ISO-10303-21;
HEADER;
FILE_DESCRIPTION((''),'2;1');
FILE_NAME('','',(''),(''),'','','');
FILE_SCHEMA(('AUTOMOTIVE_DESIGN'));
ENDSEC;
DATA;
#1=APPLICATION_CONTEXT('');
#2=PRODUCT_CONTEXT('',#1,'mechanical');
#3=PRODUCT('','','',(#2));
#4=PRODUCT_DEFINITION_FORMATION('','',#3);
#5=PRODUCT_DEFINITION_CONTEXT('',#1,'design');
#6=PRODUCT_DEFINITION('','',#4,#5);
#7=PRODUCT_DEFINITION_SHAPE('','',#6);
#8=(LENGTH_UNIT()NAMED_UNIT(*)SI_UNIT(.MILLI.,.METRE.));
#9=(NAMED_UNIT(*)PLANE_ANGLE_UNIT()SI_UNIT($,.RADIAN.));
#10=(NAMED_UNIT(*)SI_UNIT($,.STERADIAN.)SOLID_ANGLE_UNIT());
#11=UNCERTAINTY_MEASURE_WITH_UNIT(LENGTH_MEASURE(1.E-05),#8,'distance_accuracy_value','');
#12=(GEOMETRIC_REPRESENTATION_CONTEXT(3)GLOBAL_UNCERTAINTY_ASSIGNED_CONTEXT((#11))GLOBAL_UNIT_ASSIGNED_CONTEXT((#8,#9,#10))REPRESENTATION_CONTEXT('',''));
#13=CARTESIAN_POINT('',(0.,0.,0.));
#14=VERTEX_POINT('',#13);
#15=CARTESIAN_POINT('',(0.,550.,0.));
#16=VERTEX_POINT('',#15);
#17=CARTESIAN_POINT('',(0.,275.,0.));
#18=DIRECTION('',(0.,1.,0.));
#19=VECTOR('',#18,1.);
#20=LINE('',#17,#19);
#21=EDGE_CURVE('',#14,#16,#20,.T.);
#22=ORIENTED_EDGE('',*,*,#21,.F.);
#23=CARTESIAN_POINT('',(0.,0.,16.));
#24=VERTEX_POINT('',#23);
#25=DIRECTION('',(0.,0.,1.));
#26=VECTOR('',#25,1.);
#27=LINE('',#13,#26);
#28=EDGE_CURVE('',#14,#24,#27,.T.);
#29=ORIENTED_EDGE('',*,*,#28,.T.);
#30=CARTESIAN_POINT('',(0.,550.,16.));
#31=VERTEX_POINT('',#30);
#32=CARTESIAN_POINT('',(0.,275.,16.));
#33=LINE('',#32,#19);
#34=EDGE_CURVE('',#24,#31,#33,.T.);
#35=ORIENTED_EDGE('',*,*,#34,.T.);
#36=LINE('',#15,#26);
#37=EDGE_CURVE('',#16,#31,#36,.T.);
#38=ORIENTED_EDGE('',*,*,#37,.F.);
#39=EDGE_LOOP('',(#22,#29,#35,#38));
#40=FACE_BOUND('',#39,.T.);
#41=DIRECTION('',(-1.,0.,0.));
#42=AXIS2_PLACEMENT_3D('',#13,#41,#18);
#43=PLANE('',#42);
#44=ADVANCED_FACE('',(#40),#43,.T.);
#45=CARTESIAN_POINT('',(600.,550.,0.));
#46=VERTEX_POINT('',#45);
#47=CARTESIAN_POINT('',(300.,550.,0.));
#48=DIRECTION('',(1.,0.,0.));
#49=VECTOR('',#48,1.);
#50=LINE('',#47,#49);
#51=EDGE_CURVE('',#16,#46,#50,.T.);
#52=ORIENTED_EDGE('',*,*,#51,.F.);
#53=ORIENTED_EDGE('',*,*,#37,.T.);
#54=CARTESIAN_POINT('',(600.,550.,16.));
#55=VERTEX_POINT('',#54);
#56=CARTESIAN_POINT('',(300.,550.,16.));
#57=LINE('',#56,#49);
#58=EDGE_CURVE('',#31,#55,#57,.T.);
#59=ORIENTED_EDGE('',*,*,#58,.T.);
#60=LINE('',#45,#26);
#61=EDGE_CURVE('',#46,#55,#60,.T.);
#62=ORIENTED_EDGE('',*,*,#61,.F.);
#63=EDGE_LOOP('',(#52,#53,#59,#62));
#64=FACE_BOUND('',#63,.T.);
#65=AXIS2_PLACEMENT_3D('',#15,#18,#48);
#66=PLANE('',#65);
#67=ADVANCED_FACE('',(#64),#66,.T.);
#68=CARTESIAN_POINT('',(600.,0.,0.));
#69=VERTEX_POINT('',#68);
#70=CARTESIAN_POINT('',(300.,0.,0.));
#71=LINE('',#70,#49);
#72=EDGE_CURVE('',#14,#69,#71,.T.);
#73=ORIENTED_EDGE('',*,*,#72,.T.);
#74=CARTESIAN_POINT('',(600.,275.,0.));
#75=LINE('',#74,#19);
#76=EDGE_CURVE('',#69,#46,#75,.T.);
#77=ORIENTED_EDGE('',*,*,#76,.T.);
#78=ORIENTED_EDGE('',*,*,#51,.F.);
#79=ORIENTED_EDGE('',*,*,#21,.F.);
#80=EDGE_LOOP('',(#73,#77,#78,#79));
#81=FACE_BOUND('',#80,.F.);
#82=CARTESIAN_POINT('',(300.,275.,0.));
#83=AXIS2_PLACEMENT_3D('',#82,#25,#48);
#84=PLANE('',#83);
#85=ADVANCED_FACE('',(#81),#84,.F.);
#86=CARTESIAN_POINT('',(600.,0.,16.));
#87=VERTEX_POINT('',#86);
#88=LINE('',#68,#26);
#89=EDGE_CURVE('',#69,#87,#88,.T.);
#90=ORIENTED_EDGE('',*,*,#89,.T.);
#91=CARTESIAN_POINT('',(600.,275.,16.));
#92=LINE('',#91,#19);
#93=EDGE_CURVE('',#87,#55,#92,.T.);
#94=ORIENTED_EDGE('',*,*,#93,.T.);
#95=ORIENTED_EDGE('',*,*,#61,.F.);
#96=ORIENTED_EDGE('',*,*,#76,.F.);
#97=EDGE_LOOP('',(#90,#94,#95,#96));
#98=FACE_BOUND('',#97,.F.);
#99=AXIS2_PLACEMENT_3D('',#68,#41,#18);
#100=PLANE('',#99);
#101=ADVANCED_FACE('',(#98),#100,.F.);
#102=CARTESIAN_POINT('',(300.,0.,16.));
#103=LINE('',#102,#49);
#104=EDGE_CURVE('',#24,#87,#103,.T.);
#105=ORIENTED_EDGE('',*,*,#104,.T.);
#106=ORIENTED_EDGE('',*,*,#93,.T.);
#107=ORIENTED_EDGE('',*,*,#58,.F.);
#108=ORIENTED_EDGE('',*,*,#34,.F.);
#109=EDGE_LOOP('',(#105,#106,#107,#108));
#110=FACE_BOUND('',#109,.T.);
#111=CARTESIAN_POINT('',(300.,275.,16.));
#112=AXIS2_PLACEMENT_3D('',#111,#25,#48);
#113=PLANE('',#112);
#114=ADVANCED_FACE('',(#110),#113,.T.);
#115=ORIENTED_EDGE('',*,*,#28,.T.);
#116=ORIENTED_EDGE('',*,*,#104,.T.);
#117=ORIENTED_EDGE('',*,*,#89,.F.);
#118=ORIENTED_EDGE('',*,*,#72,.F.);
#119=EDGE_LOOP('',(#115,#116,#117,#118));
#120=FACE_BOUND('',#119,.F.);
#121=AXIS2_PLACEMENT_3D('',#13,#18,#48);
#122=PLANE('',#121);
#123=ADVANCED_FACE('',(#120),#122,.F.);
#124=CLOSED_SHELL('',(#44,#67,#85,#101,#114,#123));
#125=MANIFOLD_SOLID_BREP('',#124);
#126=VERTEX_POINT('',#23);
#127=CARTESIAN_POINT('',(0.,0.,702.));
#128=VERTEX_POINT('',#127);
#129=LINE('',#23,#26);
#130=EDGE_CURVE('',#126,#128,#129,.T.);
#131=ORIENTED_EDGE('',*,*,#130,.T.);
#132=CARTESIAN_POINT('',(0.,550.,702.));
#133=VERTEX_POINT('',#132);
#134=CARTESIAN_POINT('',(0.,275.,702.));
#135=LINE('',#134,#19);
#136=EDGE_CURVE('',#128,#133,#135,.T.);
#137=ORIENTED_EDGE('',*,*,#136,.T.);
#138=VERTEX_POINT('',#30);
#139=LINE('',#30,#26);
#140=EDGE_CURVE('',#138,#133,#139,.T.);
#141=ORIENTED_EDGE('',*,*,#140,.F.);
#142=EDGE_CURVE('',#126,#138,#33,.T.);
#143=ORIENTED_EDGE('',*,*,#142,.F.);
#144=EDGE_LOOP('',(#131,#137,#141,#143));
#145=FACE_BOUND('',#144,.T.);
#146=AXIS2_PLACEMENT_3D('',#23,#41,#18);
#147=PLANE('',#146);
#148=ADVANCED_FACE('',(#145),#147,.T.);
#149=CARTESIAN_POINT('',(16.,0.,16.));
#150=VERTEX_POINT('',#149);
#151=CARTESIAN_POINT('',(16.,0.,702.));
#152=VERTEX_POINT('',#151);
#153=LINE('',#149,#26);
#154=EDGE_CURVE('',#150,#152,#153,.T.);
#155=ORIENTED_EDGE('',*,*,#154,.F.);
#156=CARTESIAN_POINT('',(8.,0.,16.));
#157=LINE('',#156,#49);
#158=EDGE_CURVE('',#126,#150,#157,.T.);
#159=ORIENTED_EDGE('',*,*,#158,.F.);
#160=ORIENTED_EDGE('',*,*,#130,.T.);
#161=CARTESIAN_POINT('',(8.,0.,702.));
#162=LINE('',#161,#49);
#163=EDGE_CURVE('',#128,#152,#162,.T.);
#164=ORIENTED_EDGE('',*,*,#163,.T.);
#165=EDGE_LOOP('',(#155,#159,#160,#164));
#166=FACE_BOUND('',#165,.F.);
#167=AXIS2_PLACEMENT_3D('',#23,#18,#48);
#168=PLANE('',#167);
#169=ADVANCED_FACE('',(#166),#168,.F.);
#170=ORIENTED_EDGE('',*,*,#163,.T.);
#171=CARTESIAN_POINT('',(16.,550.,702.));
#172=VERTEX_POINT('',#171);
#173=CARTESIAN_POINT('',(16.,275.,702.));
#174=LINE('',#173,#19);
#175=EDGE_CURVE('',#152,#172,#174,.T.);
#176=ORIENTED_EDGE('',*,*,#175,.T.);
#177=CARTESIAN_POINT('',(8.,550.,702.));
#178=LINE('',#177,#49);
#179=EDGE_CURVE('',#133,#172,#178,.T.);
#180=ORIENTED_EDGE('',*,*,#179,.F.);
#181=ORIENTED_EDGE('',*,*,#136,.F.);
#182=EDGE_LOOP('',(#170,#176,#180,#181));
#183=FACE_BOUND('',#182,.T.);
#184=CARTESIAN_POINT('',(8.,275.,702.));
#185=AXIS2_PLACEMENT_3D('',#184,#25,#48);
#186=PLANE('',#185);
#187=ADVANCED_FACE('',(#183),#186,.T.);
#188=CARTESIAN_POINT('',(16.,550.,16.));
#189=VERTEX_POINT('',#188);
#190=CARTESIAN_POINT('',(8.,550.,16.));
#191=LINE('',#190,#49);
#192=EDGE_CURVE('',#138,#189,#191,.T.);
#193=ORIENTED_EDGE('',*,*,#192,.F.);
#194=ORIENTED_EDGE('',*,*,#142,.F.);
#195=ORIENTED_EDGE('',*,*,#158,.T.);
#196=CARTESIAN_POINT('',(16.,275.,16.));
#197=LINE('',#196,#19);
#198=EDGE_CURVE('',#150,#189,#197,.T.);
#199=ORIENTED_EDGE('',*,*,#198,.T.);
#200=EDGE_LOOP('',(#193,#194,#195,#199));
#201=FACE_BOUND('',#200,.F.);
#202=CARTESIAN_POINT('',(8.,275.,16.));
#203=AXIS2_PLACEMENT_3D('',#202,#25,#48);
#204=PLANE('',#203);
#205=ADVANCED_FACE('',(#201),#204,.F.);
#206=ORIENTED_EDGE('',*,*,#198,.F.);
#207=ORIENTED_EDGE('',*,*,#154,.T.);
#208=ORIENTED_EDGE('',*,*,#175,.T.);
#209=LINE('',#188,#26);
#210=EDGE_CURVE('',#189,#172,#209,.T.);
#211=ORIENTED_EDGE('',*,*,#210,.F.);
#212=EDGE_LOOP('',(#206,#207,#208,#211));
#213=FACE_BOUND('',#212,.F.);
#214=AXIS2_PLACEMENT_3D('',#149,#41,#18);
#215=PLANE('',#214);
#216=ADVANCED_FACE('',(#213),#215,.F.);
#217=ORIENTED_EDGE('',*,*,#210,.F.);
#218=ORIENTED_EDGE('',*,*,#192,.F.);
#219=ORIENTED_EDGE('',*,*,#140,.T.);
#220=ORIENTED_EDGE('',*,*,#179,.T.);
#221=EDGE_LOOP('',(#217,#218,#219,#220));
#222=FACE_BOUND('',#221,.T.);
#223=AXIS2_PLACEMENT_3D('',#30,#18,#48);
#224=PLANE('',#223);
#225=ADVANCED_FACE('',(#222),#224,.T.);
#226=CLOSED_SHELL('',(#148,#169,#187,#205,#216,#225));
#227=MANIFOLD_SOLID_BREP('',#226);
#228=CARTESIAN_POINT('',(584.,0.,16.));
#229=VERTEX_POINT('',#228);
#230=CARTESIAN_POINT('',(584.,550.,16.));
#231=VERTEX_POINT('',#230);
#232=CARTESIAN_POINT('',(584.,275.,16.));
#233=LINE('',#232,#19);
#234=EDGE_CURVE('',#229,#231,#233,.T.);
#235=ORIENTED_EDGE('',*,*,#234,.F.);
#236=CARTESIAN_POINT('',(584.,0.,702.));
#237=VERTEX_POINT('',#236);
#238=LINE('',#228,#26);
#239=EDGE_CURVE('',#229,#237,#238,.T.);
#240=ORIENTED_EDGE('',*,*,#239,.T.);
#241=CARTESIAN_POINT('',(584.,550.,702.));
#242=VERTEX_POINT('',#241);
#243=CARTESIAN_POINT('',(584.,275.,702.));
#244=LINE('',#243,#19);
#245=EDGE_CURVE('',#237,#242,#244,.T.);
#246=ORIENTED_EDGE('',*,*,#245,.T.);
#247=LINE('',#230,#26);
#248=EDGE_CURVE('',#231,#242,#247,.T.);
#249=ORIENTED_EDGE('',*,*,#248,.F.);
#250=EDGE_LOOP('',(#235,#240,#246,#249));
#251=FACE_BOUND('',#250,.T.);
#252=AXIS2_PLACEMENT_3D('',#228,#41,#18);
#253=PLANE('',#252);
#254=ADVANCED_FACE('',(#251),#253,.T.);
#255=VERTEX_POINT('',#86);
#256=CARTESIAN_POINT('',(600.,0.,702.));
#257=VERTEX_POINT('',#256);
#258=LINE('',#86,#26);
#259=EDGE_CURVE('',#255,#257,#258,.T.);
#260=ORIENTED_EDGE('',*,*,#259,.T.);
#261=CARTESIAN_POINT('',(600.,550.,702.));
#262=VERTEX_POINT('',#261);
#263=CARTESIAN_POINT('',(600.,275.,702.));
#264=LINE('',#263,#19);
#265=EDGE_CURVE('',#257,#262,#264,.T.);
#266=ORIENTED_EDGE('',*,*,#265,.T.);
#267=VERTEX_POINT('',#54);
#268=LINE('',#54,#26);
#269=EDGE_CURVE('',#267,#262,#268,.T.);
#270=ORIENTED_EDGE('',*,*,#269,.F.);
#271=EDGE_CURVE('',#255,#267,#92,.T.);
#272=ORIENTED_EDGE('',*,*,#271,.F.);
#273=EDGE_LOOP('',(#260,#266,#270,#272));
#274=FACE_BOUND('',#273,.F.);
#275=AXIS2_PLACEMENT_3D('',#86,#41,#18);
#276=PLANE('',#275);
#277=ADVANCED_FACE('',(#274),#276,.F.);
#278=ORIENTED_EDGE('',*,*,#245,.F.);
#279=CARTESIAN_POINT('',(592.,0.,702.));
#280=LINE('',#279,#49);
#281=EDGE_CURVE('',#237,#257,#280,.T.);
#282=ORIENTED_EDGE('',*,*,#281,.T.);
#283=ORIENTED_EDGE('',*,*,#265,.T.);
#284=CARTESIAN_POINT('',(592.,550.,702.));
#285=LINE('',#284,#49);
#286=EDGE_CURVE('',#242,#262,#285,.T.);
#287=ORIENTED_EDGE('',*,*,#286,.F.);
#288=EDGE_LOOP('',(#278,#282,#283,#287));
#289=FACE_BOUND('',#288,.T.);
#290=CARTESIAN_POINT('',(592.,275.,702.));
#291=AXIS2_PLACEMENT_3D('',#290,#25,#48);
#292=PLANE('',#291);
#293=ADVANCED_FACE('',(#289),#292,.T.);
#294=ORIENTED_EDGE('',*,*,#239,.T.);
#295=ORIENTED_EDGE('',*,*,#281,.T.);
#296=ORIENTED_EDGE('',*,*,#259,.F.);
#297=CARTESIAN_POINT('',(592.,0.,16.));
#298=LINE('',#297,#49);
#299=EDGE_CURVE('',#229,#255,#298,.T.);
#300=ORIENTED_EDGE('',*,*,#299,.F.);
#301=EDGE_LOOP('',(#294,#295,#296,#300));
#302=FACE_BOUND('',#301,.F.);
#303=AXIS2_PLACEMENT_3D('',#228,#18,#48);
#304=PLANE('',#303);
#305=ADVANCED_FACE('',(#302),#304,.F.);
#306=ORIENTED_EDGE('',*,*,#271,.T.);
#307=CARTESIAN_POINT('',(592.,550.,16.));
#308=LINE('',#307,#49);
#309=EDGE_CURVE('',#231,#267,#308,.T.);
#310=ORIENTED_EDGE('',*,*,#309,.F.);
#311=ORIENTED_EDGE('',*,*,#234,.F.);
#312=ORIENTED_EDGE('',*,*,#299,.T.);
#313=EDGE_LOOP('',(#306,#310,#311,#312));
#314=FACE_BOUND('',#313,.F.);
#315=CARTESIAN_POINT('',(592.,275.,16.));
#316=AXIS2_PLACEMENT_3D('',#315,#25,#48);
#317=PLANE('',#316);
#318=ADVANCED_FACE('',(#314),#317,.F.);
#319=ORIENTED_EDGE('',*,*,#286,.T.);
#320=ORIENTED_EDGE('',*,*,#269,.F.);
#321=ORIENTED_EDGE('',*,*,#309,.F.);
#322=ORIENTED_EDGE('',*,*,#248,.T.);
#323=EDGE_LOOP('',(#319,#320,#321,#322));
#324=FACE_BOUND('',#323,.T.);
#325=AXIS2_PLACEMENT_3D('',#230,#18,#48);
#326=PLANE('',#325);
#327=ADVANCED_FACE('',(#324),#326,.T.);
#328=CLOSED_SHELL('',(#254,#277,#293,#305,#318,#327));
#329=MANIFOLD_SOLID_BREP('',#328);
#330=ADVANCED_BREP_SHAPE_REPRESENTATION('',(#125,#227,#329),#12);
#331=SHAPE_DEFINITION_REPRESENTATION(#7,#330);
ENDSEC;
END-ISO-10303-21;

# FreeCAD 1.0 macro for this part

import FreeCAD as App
import Part
import Sketcher

V = App.Vector
Q = App.Units.Quantity


def add_polygon(sketch, points):
    """Adds a closed chain of lines whose ends are joined by coincident constraints."""
    first, n = sketch.GeometryCount, len(points)
    for a, b in zip(points, points[1:] + points[:1]):
        sketch.addGeometry(Part.LineSegment(App.Vector(*a, 0), App.Vector(*b, 0)), False)
    for i in range(n):
        sketch.addConstraint(Sketcher.Constraint("Coincident", first + i, 2, first + (i + 1) % n, 1))

doc = App.newDocument("Part")
body = doc.addObject("PartDesign::Body", "Body")

# Sketch on XY plane
sketch1 = body.newObject("Sketcher::SketchObject", "Sketch")
sketch1.AttachmentSupport = (doc.getObject("XY_Plane"), [""])
sketch1.MapMode = "FlatFace"
add_polygon(sketch1, [(0, 550), (0, 0), (600, 0), (600, 550)])  # lines 0-3
sketch1.addConstraint([
    Sketcher.Constraint("Vertical", 0),
    Sketcher.Constraint("Horizontal", 1),
    Sketcher.Constraint("Vertical", 2),
    Sketcher.Constraint("Horizontal", 3),
    Sketcher.Constraint("Coincident", 0, 2, -1, 1),
    Sketcher.Constraint("DistanceX", 1, 1, 1, 2, Q("600 mm")),
    Sketcher.Constraint("DistanceY", 0, 2, 0, 1, Q("550 mm")),
])
pad1 = body.newObject("PartDesign::Pad", "Pad")
pad1.Profile = sketch1
pad1.Length = 16
body2 = doc.addObject("PartDesign::Body", "Body001")

# Sketch on XY plane
sketch2 = body2.newObject("Sketcher::SketchObject", "Sketch001")
sketch2.AttachmentSupport = (doc.getObject("XY_Plane001"), [""])
sketch2.MapMode = "FlatFace"
sketch2.AttachmentOffset = App.Placement(V(0, 0, 16), App.Rotation())
add_polygon(sketch2, [(0, 550), (0, 0), (16, 0), (16, 550)])  # lines 0-3
sketch2.addConstraint([
    Sketcher.Constraint("Vertical", 0),
    Sketcher.Constraint("Horizontal", 1),
    Sketcher.Constraint("Vertical", 2),
    Sketcher.Constraint("Horizontal", 3),
    Sketcher.Constraint("Coincident", 0, 2, -1, 1),
    Sketcher.Constraint("DistanceX", 1, 1, 1, 2, Q("16 mm")),
    Sketcher.Constraint("DistanceY", 0, 2, 0, 1, Q("550 mm")),
])
pad2 = body2.newObject("PartDesign::Pad", "Pad001")
pad2.Profile = sketch2
pad2.Length = 686
body3 = doc.addObject("PartDesign::Body", "Body002")

# Sketch on XY plane
sketch3 = body3.newObject("Sketcher::SketchObject", "Sketch002")
sketch3.AttachmentSupport = (doc.getObject("XY_Plane002"), [""])
sketch3.MapMode = "FlatFace"
sketch3.AttachmentOffset = App.Placement(V(0, 0, 16), App.Rotation())
add_polygon(sketch3, [(584, 550), (584, 0), (600, 0), (600, 550)])  # lines 0-3
sketch3.addConstraint([
    Sketcher.Constraint("Vertical", 0),
    Sketcher.Constraint("Horizontal", 1),
    Sketcher.Constraint("Vertical", 2),
    Sketcher.Constraint("Horizontal", 3),
    Sketcher.Constraint("PointOnObject", 0, 2, -1),
    Sketcher.Constraint("DistanceX", 1, 1, 1, 2, Q("16 mm")),
    Sketcher.Constraint("DistanceY", 0, 2, 0, 1, Q("550 mm")),
    Sketcher.Constraint("DistanceX", -1, 1, 0, 2, Q("584 mm")),
])
pad3 = body3.newObject("PartDesign::Pad", "Pad002")
pad3.Profile = sketch3
pad3.Length = 686

doc.recompute()
